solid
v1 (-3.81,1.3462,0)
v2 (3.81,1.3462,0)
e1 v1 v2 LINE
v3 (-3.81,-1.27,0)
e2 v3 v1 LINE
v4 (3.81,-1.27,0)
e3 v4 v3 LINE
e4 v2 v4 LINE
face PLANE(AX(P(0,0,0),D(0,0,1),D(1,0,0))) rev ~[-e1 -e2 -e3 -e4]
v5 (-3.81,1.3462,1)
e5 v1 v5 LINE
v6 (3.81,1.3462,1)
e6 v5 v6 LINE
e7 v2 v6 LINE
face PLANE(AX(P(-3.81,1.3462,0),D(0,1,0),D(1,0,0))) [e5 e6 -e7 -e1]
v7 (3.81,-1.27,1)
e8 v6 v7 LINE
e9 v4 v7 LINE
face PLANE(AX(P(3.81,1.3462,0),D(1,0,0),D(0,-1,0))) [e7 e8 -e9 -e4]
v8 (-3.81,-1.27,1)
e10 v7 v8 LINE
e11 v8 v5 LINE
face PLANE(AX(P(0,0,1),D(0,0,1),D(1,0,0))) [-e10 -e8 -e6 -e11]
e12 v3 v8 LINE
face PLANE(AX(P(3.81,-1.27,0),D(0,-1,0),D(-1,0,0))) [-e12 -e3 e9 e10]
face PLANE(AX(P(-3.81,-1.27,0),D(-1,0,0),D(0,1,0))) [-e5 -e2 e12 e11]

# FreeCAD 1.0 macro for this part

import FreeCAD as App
import Part
import Sketcher

V = App.Vector
Q = App.Units.Quantity


def add_polygon(sketch, points):
    """Adds a closed chain of lines whose ends are joined by coincident constraints."""
    first, n = sketch.GeometryCount, len(points)
    for a, b in zip(points, points[1:] + points[:1]):
        sketch.addGeometry(Part.LineSegment(App.Vector(*a, 0), App.Vector(*b, 0)), False)
    for i in range(n):
        sketch.addConstraint(Sketcher.Constraint("Coincident", first + i, 2, first + (i + 1) % n, 1))

doc = App.newDocument("Part")
body = doc.addObject("PartDesign::Body", "Body")

sketch1 = body.newObject("Sketcher::SketchObject", "Sketch")
sketch1.AttachmentSupport = (doc.getObject("XY_Plane"), [""])
sketch1.MapMode = "FlatFace"
add_polygon(sketch1, [(3.8, 1.3), (-3.8, 1.3), (-3.8, -1.3), (3.8, -1.3)])
sketch1.addConstraint(Sketcher.Constraint("Horizontal", 0))
sketch1.addConstraint(Sketcher.Constraint("Vertical", 1))
sketch1.addConstraint(Sketcher.Constraint("Horizontal", 2))
sketch1.addConstraint(Sketcher.Constraint("Vertical", 3))
sketch1.addConstraint(Sketcher.Constraint("DistanceX", 0, 2, 0, 1, Q("0.3 in")))
sketch1.addConstraint(Sketcher.Constraint("DistanceY", 1, 2, 1, 1, Q("0.103 in")))
sketch1.addConstraint(Sketcher.Constraint("DistanceX", 0, 2, -1, 1, Q("0.15 in")))
sketch1.addConstraint(Sketcher.Constraint("DistanceY", 1, 2, -1, 1, Q("0.05 in")))
pad1 = body.newObject("PartDesign::Pad", "Pad")
pad1.Profile = sketch1
pad1.Length = 1

doc.recompute()
